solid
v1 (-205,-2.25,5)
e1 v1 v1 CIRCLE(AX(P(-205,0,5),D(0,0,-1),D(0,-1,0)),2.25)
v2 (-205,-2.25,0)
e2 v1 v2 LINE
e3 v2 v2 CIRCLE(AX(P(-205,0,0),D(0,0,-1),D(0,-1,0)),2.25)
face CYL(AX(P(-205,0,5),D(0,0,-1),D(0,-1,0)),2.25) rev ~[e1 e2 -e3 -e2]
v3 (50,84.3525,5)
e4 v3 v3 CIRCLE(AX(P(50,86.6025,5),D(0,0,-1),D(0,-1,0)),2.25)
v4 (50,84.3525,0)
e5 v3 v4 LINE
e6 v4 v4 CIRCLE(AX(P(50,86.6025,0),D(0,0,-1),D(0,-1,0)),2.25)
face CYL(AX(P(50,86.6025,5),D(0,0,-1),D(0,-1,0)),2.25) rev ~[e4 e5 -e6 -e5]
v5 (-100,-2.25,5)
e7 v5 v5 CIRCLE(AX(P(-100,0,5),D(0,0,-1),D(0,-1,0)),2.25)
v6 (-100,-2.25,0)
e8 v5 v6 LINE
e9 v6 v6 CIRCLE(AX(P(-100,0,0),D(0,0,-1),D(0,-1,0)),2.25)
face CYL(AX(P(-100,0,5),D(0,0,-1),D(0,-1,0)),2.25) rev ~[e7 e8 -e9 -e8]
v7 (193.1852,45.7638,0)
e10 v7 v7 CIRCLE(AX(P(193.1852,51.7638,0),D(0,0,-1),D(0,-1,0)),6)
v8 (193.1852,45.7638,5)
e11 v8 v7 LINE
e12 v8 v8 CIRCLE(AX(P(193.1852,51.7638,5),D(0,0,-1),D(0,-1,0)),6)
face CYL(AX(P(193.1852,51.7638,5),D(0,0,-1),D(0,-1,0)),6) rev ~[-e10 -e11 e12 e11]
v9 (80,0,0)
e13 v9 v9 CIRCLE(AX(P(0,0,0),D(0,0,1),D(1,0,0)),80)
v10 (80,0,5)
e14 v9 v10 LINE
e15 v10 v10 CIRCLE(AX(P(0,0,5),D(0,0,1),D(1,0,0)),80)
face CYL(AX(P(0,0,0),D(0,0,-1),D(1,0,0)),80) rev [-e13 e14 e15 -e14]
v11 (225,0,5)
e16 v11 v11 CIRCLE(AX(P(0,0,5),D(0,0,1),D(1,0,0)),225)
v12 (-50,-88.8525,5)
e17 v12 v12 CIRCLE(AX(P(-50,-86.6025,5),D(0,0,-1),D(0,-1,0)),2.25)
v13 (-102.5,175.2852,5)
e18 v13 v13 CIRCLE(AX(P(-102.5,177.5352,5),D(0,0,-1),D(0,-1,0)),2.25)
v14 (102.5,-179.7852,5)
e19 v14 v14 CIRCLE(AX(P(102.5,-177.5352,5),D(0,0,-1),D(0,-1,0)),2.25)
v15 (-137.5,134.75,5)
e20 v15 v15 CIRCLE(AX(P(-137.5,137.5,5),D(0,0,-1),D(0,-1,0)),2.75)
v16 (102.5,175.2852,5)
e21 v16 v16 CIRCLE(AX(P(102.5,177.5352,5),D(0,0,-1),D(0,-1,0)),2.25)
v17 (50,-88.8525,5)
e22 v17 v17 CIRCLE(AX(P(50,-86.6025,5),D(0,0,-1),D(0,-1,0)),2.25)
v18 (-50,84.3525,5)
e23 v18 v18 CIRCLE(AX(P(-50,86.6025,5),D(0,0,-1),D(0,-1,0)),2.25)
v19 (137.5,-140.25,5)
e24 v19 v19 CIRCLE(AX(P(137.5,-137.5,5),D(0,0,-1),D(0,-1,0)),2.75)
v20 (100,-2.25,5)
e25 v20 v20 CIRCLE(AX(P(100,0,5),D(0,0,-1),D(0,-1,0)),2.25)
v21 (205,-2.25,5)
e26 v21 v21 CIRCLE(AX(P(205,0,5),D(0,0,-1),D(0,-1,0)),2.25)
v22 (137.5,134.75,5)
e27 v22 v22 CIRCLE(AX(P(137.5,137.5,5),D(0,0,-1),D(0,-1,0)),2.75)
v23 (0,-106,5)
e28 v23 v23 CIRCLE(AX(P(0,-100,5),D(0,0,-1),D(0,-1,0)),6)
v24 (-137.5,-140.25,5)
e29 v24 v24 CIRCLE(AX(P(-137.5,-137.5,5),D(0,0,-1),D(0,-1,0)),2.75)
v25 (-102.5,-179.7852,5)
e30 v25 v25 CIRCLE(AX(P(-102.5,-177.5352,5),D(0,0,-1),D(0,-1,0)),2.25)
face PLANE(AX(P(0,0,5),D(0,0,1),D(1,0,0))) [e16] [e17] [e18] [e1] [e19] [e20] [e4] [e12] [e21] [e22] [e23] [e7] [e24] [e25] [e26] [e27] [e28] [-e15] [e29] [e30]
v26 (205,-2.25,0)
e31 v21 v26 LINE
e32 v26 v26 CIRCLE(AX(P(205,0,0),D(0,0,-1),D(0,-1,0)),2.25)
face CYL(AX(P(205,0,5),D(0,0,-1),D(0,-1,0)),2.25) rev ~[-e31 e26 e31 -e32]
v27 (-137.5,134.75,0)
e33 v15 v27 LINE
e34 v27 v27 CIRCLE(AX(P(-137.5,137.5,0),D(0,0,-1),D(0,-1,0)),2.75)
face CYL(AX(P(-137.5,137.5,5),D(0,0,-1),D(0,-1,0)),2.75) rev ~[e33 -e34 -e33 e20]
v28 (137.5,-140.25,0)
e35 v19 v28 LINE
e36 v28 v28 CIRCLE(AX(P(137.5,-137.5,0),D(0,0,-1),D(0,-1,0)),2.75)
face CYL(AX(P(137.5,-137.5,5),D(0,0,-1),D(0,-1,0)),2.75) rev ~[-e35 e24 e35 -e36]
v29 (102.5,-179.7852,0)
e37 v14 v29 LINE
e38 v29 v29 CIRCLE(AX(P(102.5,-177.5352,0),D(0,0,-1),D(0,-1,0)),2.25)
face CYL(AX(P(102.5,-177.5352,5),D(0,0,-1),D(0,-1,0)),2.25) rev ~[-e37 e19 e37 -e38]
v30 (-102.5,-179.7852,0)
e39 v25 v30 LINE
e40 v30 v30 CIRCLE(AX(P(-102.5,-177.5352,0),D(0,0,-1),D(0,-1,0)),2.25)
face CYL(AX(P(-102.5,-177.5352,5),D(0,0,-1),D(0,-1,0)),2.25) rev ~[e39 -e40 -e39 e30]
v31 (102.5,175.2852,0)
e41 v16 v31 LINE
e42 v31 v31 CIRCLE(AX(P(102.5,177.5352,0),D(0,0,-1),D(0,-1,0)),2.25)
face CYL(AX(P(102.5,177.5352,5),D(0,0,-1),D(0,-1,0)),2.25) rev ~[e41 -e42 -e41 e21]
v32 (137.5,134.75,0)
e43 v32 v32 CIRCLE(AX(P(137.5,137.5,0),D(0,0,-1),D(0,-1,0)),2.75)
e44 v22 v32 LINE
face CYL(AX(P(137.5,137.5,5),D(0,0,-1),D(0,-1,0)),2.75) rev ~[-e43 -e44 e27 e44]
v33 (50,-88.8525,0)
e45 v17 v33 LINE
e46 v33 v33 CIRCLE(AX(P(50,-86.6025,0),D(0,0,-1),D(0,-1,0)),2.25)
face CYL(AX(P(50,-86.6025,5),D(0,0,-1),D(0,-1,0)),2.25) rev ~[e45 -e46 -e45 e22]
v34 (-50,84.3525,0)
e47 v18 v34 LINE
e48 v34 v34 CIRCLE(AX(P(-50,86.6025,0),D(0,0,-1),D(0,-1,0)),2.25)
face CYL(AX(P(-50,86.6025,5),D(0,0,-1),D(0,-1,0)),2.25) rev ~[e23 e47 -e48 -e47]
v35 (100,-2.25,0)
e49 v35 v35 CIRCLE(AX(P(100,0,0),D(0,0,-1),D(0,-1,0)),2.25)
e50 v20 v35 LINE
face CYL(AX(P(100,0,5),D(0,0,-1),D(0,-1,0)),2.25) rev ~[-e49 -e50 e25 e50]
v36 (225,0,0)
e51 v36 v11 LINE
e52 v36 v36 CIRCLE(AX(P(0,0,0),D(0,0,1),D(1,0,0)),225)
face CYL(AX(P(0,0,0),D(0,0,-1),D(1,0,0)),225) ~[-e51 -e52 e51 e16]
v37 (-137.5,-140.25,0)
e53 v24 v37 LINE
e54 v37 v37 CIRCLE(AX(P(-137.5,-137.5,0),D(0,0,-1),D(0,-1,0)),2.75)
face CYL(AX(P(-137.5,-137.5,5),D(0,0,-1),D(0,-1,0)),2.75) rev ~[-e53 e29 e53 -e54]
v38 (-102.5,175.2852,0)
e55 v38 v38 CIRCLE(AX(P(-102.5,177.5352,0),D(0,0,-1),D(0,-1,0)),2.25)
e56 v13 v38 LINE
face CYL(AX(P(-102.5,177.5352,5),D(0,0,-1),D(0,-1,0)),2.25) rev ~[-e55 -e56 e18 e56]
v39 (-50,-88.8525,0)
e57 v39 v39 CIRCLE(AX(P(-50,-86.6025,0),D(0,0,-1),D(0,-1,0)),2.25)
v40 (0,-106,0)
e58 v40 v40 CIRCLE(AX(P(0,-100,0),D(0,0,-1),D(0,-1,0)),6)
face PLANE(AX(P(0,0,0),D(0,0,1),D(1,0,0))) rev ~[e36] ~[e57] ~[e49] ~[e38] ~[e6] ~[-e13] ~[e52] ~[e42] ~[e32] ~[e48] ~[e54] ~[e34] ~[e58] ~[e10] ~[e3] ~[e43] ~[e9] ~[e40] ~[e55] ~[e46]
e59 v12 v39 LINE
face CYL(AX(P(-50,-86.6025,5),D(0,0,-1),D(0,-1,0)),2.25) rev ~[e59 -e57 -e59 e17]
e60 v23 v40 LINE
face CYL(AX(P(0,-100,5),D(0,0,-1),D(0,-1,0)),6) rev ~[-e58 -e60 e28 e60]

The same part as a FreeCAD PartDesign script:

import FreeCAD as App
import Part
import Sketcher
from FreeCAD import Vector

doc = App.newDocument("Part")
body = doc.addObject("PartDesign::Body", "Body")

# Sketch on XY plane
sketch1 = body.newObject("Sketcher::SketchObject", "Sketch")
sketch1.AttachmentSupport = (doc.getObject("XY_Plane"), [""])
sketch1.MapMode = "FlatFace"
sketch1.addGeometry([
    Part.Circle(Vector(0, 0, 0), Vector(0, 0, 1), 225),
    Part.Circle(Vector(0, 0, 0), Vector(0, 0, 1), 80),
], False)
sketch1.addConstraint([
    Sketcher.Constraint("Coincident", 0, 3, -1, 1),
    Sketcher.Constraint("Coincident", 1, 3, -1, 1),
    Sketcher.Constraint("Diameter", 0, 450.0),
    Sketcher.Constraint("Diameter", 1, 160.0),
])
pad1 = body.newObject("PartDesign::Pad", "Pad")
pad1.Profile = sketch1
pad1.Length = 5

# Sketch on XY plane
sketch2 = body.newObject("Sketcher::SketchObject", "Sketch001")
sketch2.AttachmentSupport = (doc.getObject("XY_Plane"), [""])
sketch2.MapMode = "FlatFace"
sketch2.AttachmentOffset = App.Placement(Vector(0, 0, 5), App.Rotation())
sketch2.addGeometry([
    Part.Circle(Vector(-205, 0, 0), Vector(0, 0, 1), 2.2),  # 0
    Part.Circle(Vector(-100, 0, 0), Vector(0, 0, 1), 2.2),  # 1
    Part.Circle(Vector(-102.5, -177.5, 0), Vector(0, 0, 1), 2.2),  # 2
    Part.Circle(Vector(-50, -86.6, 0), Vector(0, 0, 1), 2.2),  # 3
    Part.Circle(Vector(102.5, -177.5, 0), Vector(0, 0, 1), 2.2),  # 4
    Part.Circle(Vector(50, -86.6, 0), Vector(0, 0, 1), 2.2),  # 5
    Part.Circle(Vector(205, 0, 0), Vector(0, 0, 1), 2.2),  # 6
    Part.Circle(Vector(100, 0, 0), Vector(0, 0, 1), 2.2),  # 7
    Part.Circle(Vector(102.5, 177.5, 0), Vector(0, 0, 1), 2.2),  # 8
    Part.Circle(Vector(50, 86.6, 0), Vector(0, 0, 1), 2.2),  # 9
    Part.Circle(Vector(-102.5, 177.5, 0), Vector(0, 0, 1), 2.2),  # 10
    Part.Circle(Vector(-50, 86.6, 0), Vector(0, 0, 1), 2.2),  # 11
], False)
sketch2.addConstraint([
    Sketcher.Constraint("Equal", 0, 1),
    Sketcher.Constraint("Equal", 1, 2),
    Sketcher.Constraint("Equal", 2, 3),
    Sketcher.Constraint("Equal", 3, 4),
    Sketcher.Constraint("Equal", 4, 5),
    Sketcher.Constraint("Equal", 5, 6),
    Sketcher.Constraint("Equal", 6, 7),
    Sketcher.Constraint("Equal", 7, 8),
    Sketcher.Constraint("Equal", 8, 9),
    Sketcher.Constraint("Equal", 9, 10),
    Sketcher.Constraint("Equal", 10, 11),
    Sketcher.Constraint("Symmetric", 0, 3, 6, 3, -1, 1),
    Sketcher.Constraint("Symmetric", 1, 3, 7, 3, -1, 1),
    Sketcher.Constraint("Symmetric", 2, 3, 8, 3, -1, 1),
    Sketcher.Constraint("Symmetric", 3, 3, 9, 3, -1, 1),
    Sketcher.Constraint("Symmetric", 4, 3, 10, 3, -1, 1),
    Sketcher.Constraint("Symmetric", 5, 3, 11, 3, -1, 1),
    Sketcher.Constraint("Symmetric", 2, 3, 4, 3, -2),
    Sketcher.Constraint("Symmetric", 3, 3, 5, 3, -2),
    Sketcher.Constraint("PointOnObject", 0, 3, -1),
    Sketcher.Constraint("PointOnObject", 1, 3, -1),
    Sketcher.Constraint("Diameter", 0, 4.5),
    Sketcher.Constraint("DistanceX", 0, 3, -1, 1, 205.0),
    Sketcher.Constraint("DistanceX", 1, 3, -1, 1, 100.0),
    Sketcher.Constraint("DistanceX", 3, 3, -1, 1, 50.0),
    Sketcher.Constraint("DistanceX", 2, 3, 4, 3, 205.0),
    Sketcher.Constraint("DistanceY", 5, 3, 9, 3, 173.205),
    Sketcher.Constraint("DistanceY", 2, 3, -1, 1, 177.5352),
])
doc.recompute()
hole = body.newObject("PartDesign::Hole", "Hole")
hole.Profile = sketch2
hole.ThreadType = "None"
hole.Diameter = 4.5
hole.DepthType = "Dimension"
hole.Depth = 8
hole.DrillPoint = "Angled"
hole.DrillPointAngle = 118

# Sketch on XY plane
sketch3 = body.newObject("Sketcher::SketchObject", "Sketch002")
sketch3.AttachmentSupport = (doc.getObject("XY_Plane"), [""])
sketch3.MapMode = "FlatFace"
sketch3.AttachmentOffset = App.Placement(Vector(0, 0, 5), App.Rotation())
sketch3.addGeometry([
    Part.Circle(Vector(-137.5, 137.5, 0), Vector(0, 0, 1), 2.8),
    Part.Circle(Vector(137.5, -137.5, 0), Vector(0, 0, 1), 2.8),
    Part.Circle(Vector(-137.5, -137.5, 0), Vector(0, 0, 1), 2.8),
    Part.Circle(Vector(137.5, 137.5, 0), Vector(0, 0, 1), 2.8),
], False)
sketch3.addConstraint([
    Sketcher.Constraint("Equal", 0, 1),
    Sketcher.Constraint("Equal", 1, 2),
    Sketcher.Constraint("Equal", 2, 3),
    Sketcher.Constraint("Symmetric", 0, 3, 1, 3, -1, 1),
    Sketcher.Constraint("Symmetric", 2, 3, 3, 3, -1, 1),
    Sketcher.Constraint("Symmetric", 1, 3, 2, 3, -2),
    Sketcher.Constraint("Diameter", 0, 5.5),
    Sketcher.Constraint("DistanceX", 0, 3, 1, 3, 275.0),
    Sketcher.Constraint("DistanceY", 1, 3, 0, 3, 275.0),
])
doc.recompute()
hole2 = body.newObject("PartDesign::Hole", "Hole001")
hole2.Profile = sketch3
hole2.ThreadType = "None"
hole2.Diameter = 5.5
hole2.DepthType = "Dimension"
hole2.Depth = 8
hole2.DrillPoint = "Angled"
hole2.DrillPointAngle = 118

# Sketch on XY plane
sketch4 = body.newObject("Sketcher::SketchObject", "Sketch003")
sketch4.AttachmentSupport = (doc.getObject("XY_Plane"), [""])
sketch4.MapMode = "FlatFace"
sketch4.AttachmentOffset = App.Placement(Vector(0, 0, 5), App.Rotation())
sketch4.addGeometry([
    Part.Circle(Vector(0, -100, 0), Vector(0, 0, 1), 6),
    Part.Circle(Vector(193, 52, 0), Vector(0, 0, 1), 6),
], False)
sketch4.addConstraint([
    Sketcher.Constraint("Equal", 0, 1),
    Sketcher.Constraint("PointOnObject", 0, 3, -2),
    Sketcher.Constraint("Diameter", 0, 12.0),
    Sketcher.Constraint("DistanceY", 0, 3, -1, 1, 100.0),
    Sketcher.Constraint("DistanceX", -1, 1, 1, 3, 193.1852),
    Sketcher.Constraint("DistanceY", -1, 1, 1, 3, 51.7638),
])
doc.recompute()
hole3 = body.newObject("PartDesign::Hole", "Hole002")
hole3.Profile = sketch4
hole3.ThreadType = "None"
hole3.Diameter = 12
hole3.DepthType = "Dimension"
hole3.Depth = 8
hole3.DrillPoint = "Angled"
hole3.DrillPointAngle = 118

doc.recompute()
